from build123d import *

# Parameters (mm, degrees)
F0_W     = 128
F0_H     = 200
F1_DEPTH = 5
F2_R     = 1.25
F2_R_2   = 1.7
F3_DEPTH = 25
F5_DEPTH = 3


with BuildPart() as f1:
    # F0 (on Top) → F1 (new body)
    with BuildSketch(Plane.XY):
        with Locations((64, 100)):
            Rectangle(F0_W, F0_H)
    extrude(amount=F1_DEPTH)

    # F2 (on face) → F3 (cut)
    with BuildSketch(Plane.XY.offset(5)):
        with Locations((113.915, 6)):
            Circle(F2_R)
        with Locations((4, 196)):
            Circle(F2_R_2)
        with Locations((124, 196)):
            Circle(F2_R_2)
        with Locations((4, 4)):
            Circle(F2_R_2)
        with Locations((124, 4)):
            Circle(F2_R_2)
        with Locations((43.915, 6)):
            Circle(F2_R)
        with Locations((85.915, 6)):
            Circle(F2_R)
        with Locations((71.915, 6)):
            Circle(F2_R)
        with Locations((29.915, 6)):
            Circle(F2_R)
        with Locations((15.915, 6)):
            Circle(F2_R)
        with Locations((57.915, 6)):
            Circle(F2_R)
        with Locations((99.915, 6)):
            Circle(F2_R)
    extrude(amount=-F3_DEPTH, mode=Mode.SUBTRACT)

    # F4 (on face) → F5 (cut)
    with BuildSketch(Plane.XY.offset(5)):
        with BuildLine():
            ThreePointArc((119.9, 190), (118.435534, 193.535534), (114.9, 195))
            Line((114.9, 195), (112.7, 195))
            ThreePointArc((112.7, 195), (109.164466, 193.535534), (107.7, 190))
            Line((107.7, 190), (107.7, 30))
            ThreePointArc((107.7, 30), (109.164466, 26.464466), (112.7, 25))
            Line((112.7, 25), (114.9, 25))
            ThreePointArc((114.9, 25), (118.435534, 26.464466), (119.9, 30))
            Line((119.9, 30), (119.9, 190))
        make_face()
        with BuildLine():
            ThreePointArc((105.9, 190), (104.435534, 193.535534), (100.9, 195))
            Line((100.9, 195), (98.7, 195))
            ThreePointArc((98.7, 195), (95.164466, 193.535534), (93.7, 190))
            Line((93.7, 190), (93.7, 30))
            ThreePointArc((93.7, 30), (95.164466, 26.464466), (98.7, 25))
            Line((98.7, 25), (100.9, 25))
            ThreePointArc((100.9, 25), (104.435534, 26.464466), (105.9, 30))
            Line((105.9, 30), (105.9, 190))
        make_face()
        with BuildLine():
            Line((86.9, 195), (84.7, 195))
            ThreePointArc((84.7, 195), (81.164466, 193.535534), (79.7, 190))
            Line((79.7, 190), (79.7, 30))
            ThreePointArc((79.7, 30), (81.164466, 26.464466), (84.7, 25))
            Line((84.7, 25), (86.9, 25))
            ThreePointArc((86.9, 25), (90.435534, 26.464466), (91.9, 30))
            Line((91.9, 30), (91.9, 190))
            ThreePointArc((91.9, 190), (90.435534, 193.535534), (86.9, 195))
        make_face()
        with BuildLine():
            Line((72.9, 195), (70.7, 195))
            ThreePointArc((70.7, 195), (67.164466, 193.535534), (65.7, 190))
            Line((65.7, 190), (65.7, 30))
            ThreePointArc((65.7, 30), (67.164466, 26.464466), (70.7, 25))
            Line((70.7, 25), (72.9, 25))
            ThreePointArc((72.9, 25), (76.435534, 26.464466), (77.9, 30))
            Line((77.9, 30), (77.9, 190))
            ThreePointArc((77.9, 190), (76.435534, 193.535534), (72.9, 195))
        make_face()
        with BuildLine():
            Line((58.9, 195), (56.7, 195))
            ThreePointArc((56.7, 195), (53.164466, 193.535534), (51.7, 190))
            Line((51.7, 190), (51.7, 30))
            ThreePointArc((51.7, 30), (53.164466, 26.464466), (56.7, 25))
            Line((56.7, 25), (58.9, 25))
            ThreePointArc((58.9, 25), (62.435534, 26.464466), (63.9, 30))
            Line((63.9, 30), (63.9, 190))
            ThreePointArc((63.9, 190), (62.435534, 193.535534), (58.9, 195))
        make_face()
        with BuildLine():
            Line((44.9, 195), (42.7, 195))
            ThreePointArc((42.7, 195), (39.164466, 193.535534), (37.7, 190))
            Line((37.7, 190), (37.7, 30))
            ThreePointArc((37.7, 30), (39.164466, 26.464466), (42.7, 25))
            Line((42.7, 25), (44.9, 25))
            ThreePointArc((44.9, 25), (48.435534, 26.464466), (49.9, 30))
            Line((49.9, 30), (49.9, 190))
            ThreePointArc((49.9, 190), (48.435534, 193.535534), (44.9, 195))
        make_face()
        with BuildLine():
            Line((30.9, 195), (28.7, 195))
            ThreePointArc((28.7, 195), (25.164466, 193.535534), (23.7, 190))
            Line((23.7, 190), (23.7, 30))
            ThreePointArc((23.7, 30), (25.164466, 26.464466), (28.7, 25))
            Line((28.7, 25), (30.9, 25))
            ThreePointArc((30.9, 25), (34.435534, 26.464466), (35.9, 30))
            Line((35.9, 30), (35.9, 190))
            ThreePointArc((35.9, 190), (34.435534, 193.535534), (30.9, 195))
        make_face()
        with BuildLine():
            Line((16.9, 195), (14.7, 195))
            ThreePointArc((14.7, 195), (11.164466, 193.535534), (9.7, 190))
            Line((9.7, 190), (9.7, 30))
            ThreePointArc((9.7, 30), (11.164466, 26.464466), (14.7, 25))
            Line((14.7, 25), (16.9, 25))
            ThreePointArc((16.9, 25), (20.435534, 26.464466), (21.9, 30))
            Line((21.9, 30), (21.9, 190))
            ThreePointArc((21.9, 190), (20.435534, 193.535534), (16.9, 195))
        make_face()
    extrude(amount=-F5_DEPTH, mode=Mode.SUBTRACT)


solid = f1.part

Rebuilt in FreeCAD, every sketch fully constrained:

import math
import FreeCAD as App
import Part
import Sketcher
from FreeCAD import Vector

doc = App.newDocument("Part")
body = doc.addObject("PartDesign::Body", "Body")

sketch1 = body.newObject("Sketcher::SketchObject", "Sketch")
sketch1.AttachmentSupport = (doc.getObject("XY_Plane"), [""])
sketch1.MapMode = "FlatFace"
sketch1.addGeometry([
    Part.LineSegment(Vector(0, 200, 0), Vector(0, 0, 0)),
    Part.LineSegment(Vector(0, 0, 0), Vector(128, 0, 0)),
    Part.LineSegment(Vector(128, 0, 0), Vector(128, 200, 0)),
    Part.LineSegment(Vector(128, 200, 0), Vector(0, 200, 0)),
], False)
sketch1.addConstraint([
    Sketcher.Constraint("Coincident", 0, 2, 1, 1),
    Sketcher.Constraint("Coincident", 1, 2, 2, 1),
    Sketcher.Constraint("Coincident", 2, 2, 3, 1),
    Sketcher.Constraint("Coincident", 3, 2, 0, 1),
    Sketcher.Constraint("Vertical", 0),
    Sketcher.Constraint("Horizontal", 1),
    Sketcher.Constraint("Vertical", 2),
    Sketcher.Constraint("Horizontal", 3),
    Sketcher.Constraint("Coincident", 0, 2, -1, 1),
    Sketcher.Constraint("DistanceX", 1, 1, 1, 2, 128.0),
    Sketcher.Constraint("DistanceY", 0, 2, 0, 1, 200.0),
])
pad1 = body.newObject("PartDesign::Pad", "Pad")
pad1.Profile = sketch1
pad1.Length = 5

sketch2 = body.newObject("Sketcher::SketchObject", "Sketch001")
sketch2.AttachmentSupport = (doc.getObject("XY_Plane"), [""])
sketch2.MapMode = "FlatFace"
sketch2.AttachmentOffset = App.Placement(Vector(0, 0, 5), App.Rotation())
sketch2.addGeometry([
    Part.Circle(Vector(113.915, 6, 0), Vector(0, 0, 1), 1.25),
    Part.Circle(Vector(4, 196, 0), Vector(0, 0, 1), 1.7),
    Part.Circle(Vector(124, 196, 0), Vector(0, 0, 1), 1.7),
    Part.Circle(Vector(4, 4, 0), Vector(0, 0, 1), 1.7),
    Part.Circle(Vector(124, 4, 0), Vector(0, 0, 1), 1.7),
    Part.Circle(Vector(43.915, 6, 0), Vector(0, 0, 1), 1.25),
    Part.Circle(Vector(85.915, 6, 0), Vector(0, 0, 1), 1.25),
    Part.Circle(Vector(71.915, 6, 0), Vector(0, 0, 1), 1.25),
    Part.Circle(Vector(29.915, 6, 0), Vector(0, 0, 1), 1.25),
    Part.Circle(Vector(15.915, 6, 0), Vector(0, 0, 1), 1.25),
    Part.Circle(Vector(57.915, 6, 0), Vector(0, 0, 1), 1.25),
    Part.Circle(Vector(99.915, 6, 0), Vector(0, 0, 1), 1.25),
], False)
sketch2.addConstraint([
    Sketcher.Constraint("Equal", 1, 2),
    Sketcher.Constraint("Equal", 2, 3),
    Sketcher.Constraint("Equal", 3, 4),
    Sketcher.Constraint("Equal", 0, 5),
    Sketcher.Constraint("Equal", 5, 6),
    Sketcher.Constraint("Equal", 6, 7),
    Sketcher.Constraint("Equal", 7, 8),
    Sketcher.Constraint("Equal", 8, 9),
    Sketcher.Constraint("Equal", 9, 10),
    Sketcher.Constraint("Equal", 10, 11),
    Sketcher.Constraint("Horizontal", 1, 3, 2, 3),
    Sketcher.Constraint("Horizontal", 3, 3, 4, 3),
    Sketcher.Constraint("Horizontal", 0, 3, 5, 3),
    Sketcher.Constraint("Horizontal", 5, 3, 6, 3),
    Sketcher.Constraint("Horizontal", 6, 3, 7, 3),
    Sketcher.Constraint("Horizontal", 7, 3, 8, 3),
    Sketcher.Constraint("Horizontal", 8, 3, 9, 3),
    Sketcher.Constraint("Horizontal", 9, 3, 10, 3),
    Sketcher.Constraint("Horizontal", 10, 3, 11, 3),
    Sketcher.Constraint("Vertical", 1, 3, 3, 3),
    Sketcher.Constraint("Vertical", 2, 3, 4, 3),
    Sketcher.Constraint("Diameter", 0, 2.5),
    Sketcher.Constraint("Diameter", 1, 3.4),
    Sketcher.Constraint("DistanceY", -1, 1, 0, 3, 6.0),
    Sketcher.Constraint("DistanceX", -1, 1, 1, 3, 4.0),
    Sketcher.Constraint("DistanceY", -1, 1, 1, 3, 196.0),
    Sketcher.Constraint("DistanceX", -1, 1, 2, 3, 124.0),
    Sketcher.Constraint("DistanceY", -1, 1, 3, 3, 4.0),
    Sketcher.Constraint("DistanceX", 5, 3, 0, 3, 70.0),
    Sketcher.Constraint("DistanceX", 6, 3, 0, 3, 28.0),
    Sketcher.Constraint("DistanceX", 7, 3, 6, 3, 14.0),
    Sketcher.Constraint("DistanceX", 8, 3, 5, 3, 14.0),
    Sketcher.Constraint("DistanceX", 9, 3, 8, 3, 14.0),
    Sketcher.Constraint("DistanceX", 5, 3, 10, 3, 14.0),
    Sketcher.Constraint("DistanceX", 11, 3, 0, 3, 14.0),
    Sketcher.Constraint("DistanceX", -1, 1, 0, 3, 113.915),
])
pocket1 = body.newObject("PartDesign::Pocket", "Pocket")
pocket1.Profile = sketch2
pocket1.Length = 25

sketch3 = body.newObject("Sketcher::SketchObject", "Sketch002")
sketch3.AttachmentSupport = (doc.getObject("XY_Plane"), [""])
sketch3.MapMode = "FlatFace"
sketch3.AttachmentOffset = App.Placement(Vector(0, 0, 5), App.Rotation())
sketch3.addGeometry([
    Part.ArcOfCircle(Part.Circle(Vector(114.9, 190, 0), Vector(0, 0, 1), 5), math.radians(-0.000004), math.radians(90.000004)),
    Part.LineSegment(Vector(114.9, 195, 0), Vector(112.7, 195, 0)),
    Part.ArcOfCircle(Part.Circle(Vector(112.7, 190, 0), Vector(0, 0, 1), 5), math.radians(89.999996), math.radians(180.000004)),
    Part.LineSegment(Vector(107.7, 190, 0), Vector(107.7, 30, 0)),
    Part.ArcOfCircle(Part.Circle(Vector(112.7, 30, 0), Vector(0, 0, 1), 5), math.radians(179.999996), math.radians(270.000004)),
    Part.LineSegment(Vector(112.7, 25, 0), Vector(114.9, 25, 0)),
    Part.ArcOfCircle(Part.Circle(Vector(114.9, 30, 0), Vector(0, 0, 1), 5), math.radians(-90.000004), math.radians(0.000004)),
    Part.LineSegment(Vector(119.9, 30, 0), Vector(119.9, 190, 0)),
    Part.ArcOfCircle(Part.Circle(Vector(100.9, 190, 0), Vector(0, 0, 1), 5), math.radians(-0.000004), math.radians(90.000004)),
    Part.LineSegment(Vector(100.9, 195, 0), Vector(98.7, 195, 0)),
    Part.ArcOfCircle(Part.Circle(Vector(98.7, 190, 0), Vector(0, 0, 1), 5), math.radians(89.999996), math.radians(180.000004)),
    Part.LineSegment(Vector(93.7, 190, 0), Vector(93.7, 30, 0)),
    Part.ArcOfCircle(Part.Circle(Vector(98.7, 30, 0), Vector(0, 0, 1), 5), math.radians(179.999996), math.radians(270.000004)),
    Part.LineSegment(Vector(98.7, 25, 0), Vector(100.9, 25, 0)),
    Part.ArcOfCircle(Part.Circle(Vector(100.9, 30, 0), Vector(0, 0, 1), 5), math.radians(-90.000004), math.radians(0.000004)),
    Part.LineSegment(Vector(105.9, 30, 0), Vector(105.9, 190, 0)),
    Part.LineSegment(Vector(86.9, 195, 0), Vector(84.7, 195, 0)),
    Part.ArcOfCircle(Part.Circle(Vector(84.7, 190, 0), Vector(0, 0, 1), 5), math.radians(89.999996), math.radians(180.000004)),
    Part.LineSegment(Vector(79.7, 190, 0), Vector(79.7, 30, 0)),
    Part.ArcOfCircle(Part.Circle(Vector(84.7, 30, 0), Vector(0, 0, 1), 5), math.radians(179.999996), math.radians(270.000004)),
    Part.LineSegment(Vector(84.7, 25, 0), Vector(86.9, 25, 0)),
    Part.ArcOfCircle(Part.Circle(Vector(86.9, 30, 0), Vector(0, 0, 1), 5), math.radians(-90.000004), math.radians(0.000004)),
    Part.LineSegment(Vector(91.9, 30, 0), Vector(91.9, 190, 0)),
    Part.ArcOfCircle(Part.Circle(Vector(86.9, 190, 0), Vector(0, 0, 1), 5), math.radians(-0.000004), math.radians(90.000004)),
    Part.LineSegment(Vector(72.9, 195, 0), Vector(70.7, 195, 0)),
    Part.ArcOfCircle(Part.Circle(Vector(70.7, 190, 0), Vector(0, 0, 1), 5), math.radians(89.999996), math.radians(180.000004)),
    Part.LineSegment(Vector(65.7, 190, 0), Vector(65.7, 30, 0)),
    Part.ArcOfCircle(Part.Circle(Vector(70.7, 30, 0), Vector(0, 0, 1), 5), math.radians(179.999996), math.radians(270.000004)),
    Part.LineSegment(Vector(70.7, 25, 0), Vector(72.9, 25, 0)),
    Part.ArcOfCircle(Part.Circle(Vector(72.9, 30, 0), Vector(0, 0, 1), 5), math.radians(-90.000004), math.radians(0.000004)),
    Part.LineSegment(Vector(77.9, 30, 0), Vector(77.9, 190, 0)),
    Part.ArcOfCircle(Part.Circle(Vector(72.9, 190, 0), Vector(0, 0, 1), 5), math.radians(-0.000004), math.radians(90.000004)),
    Part.LineSegment(Vector(58.9, 195, 0), Vector(56.7, 195, 0)),
    Part.ArcOfCircle(Part.Circle(Vector(56.7, 190, 0), Vector(0, 0, 1), 5), math.radians(89.999996), math.radians(180.000004)),
    Part.LineSegment(Vector(51.7, 190, 0), Vector(51.7, 30, 0)),
    Part.ArcOfCircle(Part.Circle(Vector(56.7, 30, 0), Vector(0, 0, 1), 5), math.radians(179.999996), math.radians(270.000004)),
    Part.LineSegment(Vector(56.7, 25, 0), Vector(58.9, 25, 0)),
    Part.ArcOfCircle(Part.Circle(Vector(58.9, 30, 0), Vector(0, 0, 1), 5), math.radians(-90.000004), math.radians(0.000004)),
    Part.LineSegment(Vector(63.9, 30, 0), Vector(63.9, 190, 0)),
    Part.ArcOfCircle(Part.Circle(Vector(58.9, 190, 0), Vector(0, 0, 1), 5), math.radians(-0.000004), math.radians(90.000004)),
    Part.LineSegment(Vector(44.9, 195, 0), Vector(42.7, 195, 0)),
    Part.ArcOfCircle(Part.Circle(Vector(42.7, 190, 0), Vector(0, 0, 1), 5), math.radians(89.999996), math.radians(180.000004)),
    Part.LineSegment(Vector(37.7, 190, 0), Vector(37.7, 30, 0)),
    Part.ArcOfCircle(Part.Circle(Vector(42.7, 30, 0), Vector(0, 0, 1), 5), math.radians(179.999996), math.radians(270.000004)),
    Part.LineSegment(Vector(42.7, 25, 0), Vector(44.9, 25, 0)),
    Part.ArcOfCircle(Part.Circle(Vector(44.9, 30, 0), Vector(0, 0, 1), 5), math.radians(-90.000004), math.radians(0.000004)),
    Part.LineSegment(Vector(49.9, 30, 0), Vector(49.9, 190, 0)),
    Part.ArcOfCircle(Part.Circle(Vector(44.9, 190, 0), Vector(0, 0, 1), 5), math.radians(-0.000004), math.radians(90.000004)),
    Part.LineSegment(Vector(30.9, 195, 0), Vector(28.7, 195, 0)),
    Part.ArcOfCircle(Part.Circle(Vector(28.7, 190, 0), Vector(0, 0, 1), 5), math.radians(89.999996), math.radians(180.000004)),
    Part.LineSegment(Vector(23.7, 190, 0), Vector(23.7, 30, 0)),
    Part.ArcOfCircle(Part.Circle(Vector(28.7, 30, 0), Vector(0, 0, 1), 5), math.radians(179.999996), math.radians(270.000004)),
    Part.LineSegment(Vector(28.7, 25, 0), Vector(30.9, 25, 0)),
    Part.ArcOfCircle(Part.Circle(Vector(30.9, 30, 0), Vector(0, 0, 1), 5), math.radians(-90.000004), math.radians(0.000004)),
    Part.LineSegment(Vector(35.9, 30, 0), Vector(35.9, 190, 0)),
    Part.ArcOfCircle(Part.Circle(Vector(30.9, 190, 0), Vector(0, 0, 1), 5), math.radians(-0.000004), math.radians(90.000004)),
    Part.LineSegment(Vector(16.9, 195, 0), Vector(14.7, 195, 0)),
    Part.ArcOfCircle(Part.Circle(Vector(14.7, 190, 0), Vector(0, 0, 1), 5), math.radians(89.999996), math.radians(180.000004)),
    Part.LineSegment(Vector(9.7, 190, 0), Vector(9.7, 30, 0)),
    Part.ArcOfCircle(Part.Circle(Vector(14.7, 30, 0), Vector(0, 0, 1), 5), math.radians(179.999996), math.radians(270.000004)),
    Part.LineSegment(Vector(14.7, 25, 0), Vector(16.9, 25, 0)),
    Part.ArcOfCircle(Part.Circle(Vector(16.9, 30, 0), Vector(0, 0, 1), 5), math.radians(-90.000004), math.radians(0.000004)),
    Part.LineSegment(Vector(21.9, 30, 0), Vector(21.9, 190, 0)),
    Part.ArcOfCircle(Part.Circle(Vector(16.9, 190, 0), Vector(0, 0, 1), 5), math.radians(-0.000004), math.radians(90.000004)),
], False)
sketch3.addConstraint([
    Sketcher.Constraint("Tangent", 0, 2, 1, 1),
    Sketcher.Constraint("Tangent", 1, 2, 2, 1),
    Sketcher.Constraint("Tangent", 2, 2, 3, 1),
    Sketcher.Constraint("Tangent", 3, 2, 4, 1),
    Sketcher.Constraint("Tangent", 4, 2, 5, 1),
    Sketcher.Constraint("Tangent", 5, 2, 6, 1),
    Sketcher.Constraint("Tangent", 6, 2, 7, 1),
    Sketcher.Constraint("Tangent", 7, 2, 0, 1),
    Sketcher.Constraint("Tangent", 8, 2, 9, 1),
    Sketcher.Constraint("Tangent", 9, 2, 10, 1),
    Sketcher.Constraint("Tangent", 10, 2, 11, 1),
    Sketcher.Constraint("Tangent", 11, 2, 12, 1),
    Sketcher.Constraint("Tangent", 12, 2, 13, 1),
    Sketcher.Constraint("Tangent", 13, 2, 14, 1),
    Sketcher.Constraint("Tangent", 14, 2, 15, 1),
    Sketcher.Constraint("Tangent", 15, 2, 8, 1),
    Sketcher.Constraint("Tangent", 16, 2, 17, 1),
    Sketcher.Constraint("Tangent", 17, 2, 18, 1),
    Sketcher.Constraint("Tangent", 18, 2, 19, 1),
    Sketcher.Constraint("Tangent", 19, 2, 20, 1),
    Sketcher.Constraint("Tangent", 20, 2, 21, 1),
    Sketcher.Constraint("Tangent", 21, 2, 22, 1),
    Sketcher.Constraint("Tangent", 22, 2, 23, 1),
    Sketcher.Constraint("Tangent", 23, 2, 16, 1),
    Sketcher.Constraint("Tangent", 24, 2, 25, 1),
    Sketcher.Constraint("Tangent", 25, 2, 26, 1),
    Sketcher.Constraint("Tangent", 26, 2, 27, 1),
    Sketcher.Constraint("Tangent", 27, 2, 28, 1),
    Sketcher.Constraint("Tangent", 28, 2, 29, 1),
    Sketcher.Constraint("Tangent", 29, 2, 30, 1),
    Sketcher.Constraint("Tangent", 30, 2, 31, 1),
    Sketcher.Constraint("Tangent", 31, 2, 24, 1),
    Sketcher.Constraint("Tangent", 32, 2, 33, 1),
    Sketcher.Constraint("Tangent", 33, 2, 34, 1),
    Sketcher.Constraint("Tangent", 34, 2, 35, 1),
    Sketcher.Constraint("Tangent", 35, 2, 36, 1),
    Sketcher.Constraint("Tangent", 36, 2, 37, 1),
    Sketcher.Constraint("Tangent", 37, 2, 38, 1),
    Sketcher.Constraint("Tangent", 38, 2, 39, 1),
    Sketcher.Constraint("Tangent", 39, 2, 32, 1),
    Sketcher.Constraint("Tangent", 40, 2, 41, 1),
    Sketcher.Constraint("Tangent", 41, 2, 42, 1),
    Sketcher.Constraint("Tangent", 42, 2, 43, 1),
    Sketcher.Constraint("Tangent", 43, 2, 44, 1),
    Sketcher.Constraint("Tangent", 44, 2, 45, 1),
    Sketcher.Constraint("Tangent", 45, 2, 46, 1),
    Sketcher.Constraint("Tangent", 46, 2, 47, 1),
    Sketcher.Constraint("Tangent", 47, 2, 40, 1),
    Sketcher.Constraint("Tangent", 48, 2, 49, 1),
    Sketcher.Constraint("Tangent", 49, 2, 50, 1),
    Sketcher.Constraint("Tangent", 50, 2, 51, 1),
    Sketcher.Constraint("Tangent", 51, 2, 52, 1),
    Sketcher.Constraint("Tangent", 52, 2, 53, 1),
    Sketcher.Constraint("Tangent", 53, 2, 54, 1),
    Sketcher.Constraint("Tangent", 54, 2, 55, 1),
    Sketcher.Constraint("Tangent", 55, 2, 48, 1),
    Sketcher.Constraint("Tangent", 56, 2, 57, 1),
    Sketcher.Constraint("Tangent", 57, 2, 58, 1),
    Sketcher.Constraint("Tangent", 58, 2, 59, 1),
    Sketcher.Constraint("Tangent", 59, 2, 60, 1),
    Sketcher.Constraint("Tangent", 60, 2, 61, 1),
    Sketcher.Constraint("Tangent", 61, 2, 62, 1),
    Sketcher.Constraint("Tangent", 62, 2, 63, 1),
    Sketcher.Constraint("Tangent", 63, 2, 56, 1),
    Sketcher.Constraint("Horizontal", 1),
    Sketcher.Constraint("Vertical", 3),
    Sketcher.Constraint("Horizontal", 5),
    Sketcher.Constraint("Vertical", 7),
    Sketcher.Constraint("Horizontal", 9),
    Sketcher.Constraint("Vertical", 11),
    Sketcher.Constraint("Horizontal", 13),
    Sketcher.Constraint("Vertical", 15),
    Sketcher.Constraint("Horizontal", 16),
    Sketcher.Constraint("Vertical", 18),
    Sketcher.Constraint("Horizontal", 20),
    Sketcher.Constraint("Vertical", 22),
    Sketcher.Constraint("Horizontal", 24),
    Sketcher.Constraint("Vertical", 26),
    Sketcher.Constraint("Horizontal", 28),
    Sketcher.Constraint("Vertical", 30),
    Sketcher.Constraint("Horizontal", 32),
    Sketcher.Constraint("Vertical", 34),
    Sketcher.Constraint("Horizontal", 36),
    Sketcher.Constraint("Vertical", 38),
    Sketcher.Constraint("Horizontal", 40),
    Sketcher.Constraint("Vertical", 42),
    Sketcher.Constraint("Horizontal", 44),
    Sketcher.Constraint("Vertical", 46),
    Sketcher.Constraint("Horizontal", 48),
    Sketcher.Constraint("Vertical", 50),
    Sketcher.Constraint("Horizontal", 52),
    Sketcher.Constraint("Vertical", 54),
    Sketcher.Constraint("Horizontal", 56),
    Sketcher.Constraint("Vertical", 58),
    Sketcher.Constraint("Horizontal", 60),
    Sketcher.Constraint("Vertical", 62),
    Sketcher.Constraint("Equal", 0, 2),
    Sketcher.Constraint("Equal", 2, 4),
    Sketcher.Constraint("Equal", 4, 6),
    Sketcher.Constraint("Equal", 6, 8),
    Sketcher.Constraint("Equal", 8, 10),
    Sketcher.Constraint("Equal", 10, 12),
    Sketcher.Constraint("Equal", 12, 14),
    Sketcher.Constraint("Equal", 14, 17),
    Sketcher.Constraint("Equal", 17, 19),
    Sketcher.Constraint("Equal", 19, 21),
    Sketcher.Constraint("Equal", 21, 23),
    Sketcher.Constraint("Equal", 23, 25),
    Sketcher.Constraint("Equal", 25, 27),
    Sketcher.Constraint("Equal", 27, 29),
    Sketcher.Constraint("Equal", 29, 31),
    Sketcher.Constraint("Equal", 31, 33),
    Sketcher.Constraint("Equal", 33, 35),
    Sketcher.Constraint("Equal", 35, 37),
    Sketcher.Constraint("Equal", 37, 39),
    Sketcher.Constraint("Equal", 39, 41),
    Sketcher.Constraint("Equal", 41, 43),
    Sketcher.Constraint("Equal", 43, 45),
    Sketcher.Constraint("Equal", 45, 47),
    Sketcher.Constraint("Equal", 47, 49),
    Sketcher.Constraint("Equal", 49, 51),
    Sketcher.Constraint("Equal", 51, 53),
    Sketcher.Constraint("Equal", 53, 55),
    Sketcher.Constraint("Equal", 55, 57),
    Sketcher.Constraint("Equal", 57, 59),
    Sketcher.Constraint("Equal", 59, 61),
    Sketcher.Constraint("Equal", 61, 63),
    Sketcher.Constraint("Horizontal", 2, 3, 8, 3),
    Sketcher.Constraint("Horizontal", 6, 3, 12, 3),
    Sketcher.Constraint("Horizontal", 10, 3, 17, 3),
    Sketcher.Constraint("Horizontal", 14, 3, 19, 3),
    Sketcher.Constraint("Horizontal", 23, 3, 25, 3),
    Sketcher.Constraint("Horizontal", 21, 3, 27, 3),
    Sketcher.Constraint("Horizontal", 31, 3, 33, 3),
    Sketcher.Constraint("Horizontal", 29, 3, 35, 3),
    Sketcher.Constraint("Horizontal", 39, 3, 41, 3),
    Sketcher.Constraint("Horizontal", 37, 3, 43, 3),
    Sketcher.Constraint("Horizontal", 47, 3, 49, 3),
    Sketcher.Constraint("Horizontal", 45, 3, 51, 3),
    Sketcher.Constraint("Horizontal", 55, 3, 57, 3),
    Sketcher.Constraint("Horizontal", 53, 3, 59, 3),
    Sketcher.Constraint("Equal", 5, 9),
    Sketcher.Constraint("Equal", 13, 16),
    Sketcher.Constraint("Equal", 20, 24),
    Sketcher.Constraint("Equal", 28, 32),
    Sketcher.Constraint("Equal", 36, 40),
    Sketcher.Constraint("Equal", 44, 48),
    Sketcher.Constraint("Equal", 52, 56),
    Sketcher.Constraint("Radius", 0, 5.0),
    Sketcher.Constraint("DistanceY", 3, 2, 3, 1, 160.0),
    Sketcher.Constraint("DistanceX", 1, 2, 1, 1, 2.2),
    Sketcher.Constraint("DistanceY", -1, 1, 0, 3, 190.0),
    Sketcher.Constraint("DistanceX", -1, 1, 0, 3, 114.9),
    Sketcher.Constraint("DistanceX", -1, 1, 8, 3, 100.9),
    Sketcher.Constraint("DistanceX", -1, 1, 17, 3, 84.7),
    Sketcher.Constraint("DistanceX", -1, 1, 25, 3, 70.7),
    Sketcher.Constraint("DistanceX", -1, 1, 33, 3, 56.7),
    Sketcher.Constraint("DistanceX", -1, 1, 41, 3, 42.7),
    Sketcher.Constraint("DistanceX", -1, 1, 49, 3, 28.7),
    Sketcher.Constraint("DistanceX", -1, 1, 57, 3, 14.7),
])
pocket2 = body.newObject("PartDesign::Pocket", "Pocket001")
pocket2.Profile = sketch3
pocket2.Length = 3

doc.recompute()
